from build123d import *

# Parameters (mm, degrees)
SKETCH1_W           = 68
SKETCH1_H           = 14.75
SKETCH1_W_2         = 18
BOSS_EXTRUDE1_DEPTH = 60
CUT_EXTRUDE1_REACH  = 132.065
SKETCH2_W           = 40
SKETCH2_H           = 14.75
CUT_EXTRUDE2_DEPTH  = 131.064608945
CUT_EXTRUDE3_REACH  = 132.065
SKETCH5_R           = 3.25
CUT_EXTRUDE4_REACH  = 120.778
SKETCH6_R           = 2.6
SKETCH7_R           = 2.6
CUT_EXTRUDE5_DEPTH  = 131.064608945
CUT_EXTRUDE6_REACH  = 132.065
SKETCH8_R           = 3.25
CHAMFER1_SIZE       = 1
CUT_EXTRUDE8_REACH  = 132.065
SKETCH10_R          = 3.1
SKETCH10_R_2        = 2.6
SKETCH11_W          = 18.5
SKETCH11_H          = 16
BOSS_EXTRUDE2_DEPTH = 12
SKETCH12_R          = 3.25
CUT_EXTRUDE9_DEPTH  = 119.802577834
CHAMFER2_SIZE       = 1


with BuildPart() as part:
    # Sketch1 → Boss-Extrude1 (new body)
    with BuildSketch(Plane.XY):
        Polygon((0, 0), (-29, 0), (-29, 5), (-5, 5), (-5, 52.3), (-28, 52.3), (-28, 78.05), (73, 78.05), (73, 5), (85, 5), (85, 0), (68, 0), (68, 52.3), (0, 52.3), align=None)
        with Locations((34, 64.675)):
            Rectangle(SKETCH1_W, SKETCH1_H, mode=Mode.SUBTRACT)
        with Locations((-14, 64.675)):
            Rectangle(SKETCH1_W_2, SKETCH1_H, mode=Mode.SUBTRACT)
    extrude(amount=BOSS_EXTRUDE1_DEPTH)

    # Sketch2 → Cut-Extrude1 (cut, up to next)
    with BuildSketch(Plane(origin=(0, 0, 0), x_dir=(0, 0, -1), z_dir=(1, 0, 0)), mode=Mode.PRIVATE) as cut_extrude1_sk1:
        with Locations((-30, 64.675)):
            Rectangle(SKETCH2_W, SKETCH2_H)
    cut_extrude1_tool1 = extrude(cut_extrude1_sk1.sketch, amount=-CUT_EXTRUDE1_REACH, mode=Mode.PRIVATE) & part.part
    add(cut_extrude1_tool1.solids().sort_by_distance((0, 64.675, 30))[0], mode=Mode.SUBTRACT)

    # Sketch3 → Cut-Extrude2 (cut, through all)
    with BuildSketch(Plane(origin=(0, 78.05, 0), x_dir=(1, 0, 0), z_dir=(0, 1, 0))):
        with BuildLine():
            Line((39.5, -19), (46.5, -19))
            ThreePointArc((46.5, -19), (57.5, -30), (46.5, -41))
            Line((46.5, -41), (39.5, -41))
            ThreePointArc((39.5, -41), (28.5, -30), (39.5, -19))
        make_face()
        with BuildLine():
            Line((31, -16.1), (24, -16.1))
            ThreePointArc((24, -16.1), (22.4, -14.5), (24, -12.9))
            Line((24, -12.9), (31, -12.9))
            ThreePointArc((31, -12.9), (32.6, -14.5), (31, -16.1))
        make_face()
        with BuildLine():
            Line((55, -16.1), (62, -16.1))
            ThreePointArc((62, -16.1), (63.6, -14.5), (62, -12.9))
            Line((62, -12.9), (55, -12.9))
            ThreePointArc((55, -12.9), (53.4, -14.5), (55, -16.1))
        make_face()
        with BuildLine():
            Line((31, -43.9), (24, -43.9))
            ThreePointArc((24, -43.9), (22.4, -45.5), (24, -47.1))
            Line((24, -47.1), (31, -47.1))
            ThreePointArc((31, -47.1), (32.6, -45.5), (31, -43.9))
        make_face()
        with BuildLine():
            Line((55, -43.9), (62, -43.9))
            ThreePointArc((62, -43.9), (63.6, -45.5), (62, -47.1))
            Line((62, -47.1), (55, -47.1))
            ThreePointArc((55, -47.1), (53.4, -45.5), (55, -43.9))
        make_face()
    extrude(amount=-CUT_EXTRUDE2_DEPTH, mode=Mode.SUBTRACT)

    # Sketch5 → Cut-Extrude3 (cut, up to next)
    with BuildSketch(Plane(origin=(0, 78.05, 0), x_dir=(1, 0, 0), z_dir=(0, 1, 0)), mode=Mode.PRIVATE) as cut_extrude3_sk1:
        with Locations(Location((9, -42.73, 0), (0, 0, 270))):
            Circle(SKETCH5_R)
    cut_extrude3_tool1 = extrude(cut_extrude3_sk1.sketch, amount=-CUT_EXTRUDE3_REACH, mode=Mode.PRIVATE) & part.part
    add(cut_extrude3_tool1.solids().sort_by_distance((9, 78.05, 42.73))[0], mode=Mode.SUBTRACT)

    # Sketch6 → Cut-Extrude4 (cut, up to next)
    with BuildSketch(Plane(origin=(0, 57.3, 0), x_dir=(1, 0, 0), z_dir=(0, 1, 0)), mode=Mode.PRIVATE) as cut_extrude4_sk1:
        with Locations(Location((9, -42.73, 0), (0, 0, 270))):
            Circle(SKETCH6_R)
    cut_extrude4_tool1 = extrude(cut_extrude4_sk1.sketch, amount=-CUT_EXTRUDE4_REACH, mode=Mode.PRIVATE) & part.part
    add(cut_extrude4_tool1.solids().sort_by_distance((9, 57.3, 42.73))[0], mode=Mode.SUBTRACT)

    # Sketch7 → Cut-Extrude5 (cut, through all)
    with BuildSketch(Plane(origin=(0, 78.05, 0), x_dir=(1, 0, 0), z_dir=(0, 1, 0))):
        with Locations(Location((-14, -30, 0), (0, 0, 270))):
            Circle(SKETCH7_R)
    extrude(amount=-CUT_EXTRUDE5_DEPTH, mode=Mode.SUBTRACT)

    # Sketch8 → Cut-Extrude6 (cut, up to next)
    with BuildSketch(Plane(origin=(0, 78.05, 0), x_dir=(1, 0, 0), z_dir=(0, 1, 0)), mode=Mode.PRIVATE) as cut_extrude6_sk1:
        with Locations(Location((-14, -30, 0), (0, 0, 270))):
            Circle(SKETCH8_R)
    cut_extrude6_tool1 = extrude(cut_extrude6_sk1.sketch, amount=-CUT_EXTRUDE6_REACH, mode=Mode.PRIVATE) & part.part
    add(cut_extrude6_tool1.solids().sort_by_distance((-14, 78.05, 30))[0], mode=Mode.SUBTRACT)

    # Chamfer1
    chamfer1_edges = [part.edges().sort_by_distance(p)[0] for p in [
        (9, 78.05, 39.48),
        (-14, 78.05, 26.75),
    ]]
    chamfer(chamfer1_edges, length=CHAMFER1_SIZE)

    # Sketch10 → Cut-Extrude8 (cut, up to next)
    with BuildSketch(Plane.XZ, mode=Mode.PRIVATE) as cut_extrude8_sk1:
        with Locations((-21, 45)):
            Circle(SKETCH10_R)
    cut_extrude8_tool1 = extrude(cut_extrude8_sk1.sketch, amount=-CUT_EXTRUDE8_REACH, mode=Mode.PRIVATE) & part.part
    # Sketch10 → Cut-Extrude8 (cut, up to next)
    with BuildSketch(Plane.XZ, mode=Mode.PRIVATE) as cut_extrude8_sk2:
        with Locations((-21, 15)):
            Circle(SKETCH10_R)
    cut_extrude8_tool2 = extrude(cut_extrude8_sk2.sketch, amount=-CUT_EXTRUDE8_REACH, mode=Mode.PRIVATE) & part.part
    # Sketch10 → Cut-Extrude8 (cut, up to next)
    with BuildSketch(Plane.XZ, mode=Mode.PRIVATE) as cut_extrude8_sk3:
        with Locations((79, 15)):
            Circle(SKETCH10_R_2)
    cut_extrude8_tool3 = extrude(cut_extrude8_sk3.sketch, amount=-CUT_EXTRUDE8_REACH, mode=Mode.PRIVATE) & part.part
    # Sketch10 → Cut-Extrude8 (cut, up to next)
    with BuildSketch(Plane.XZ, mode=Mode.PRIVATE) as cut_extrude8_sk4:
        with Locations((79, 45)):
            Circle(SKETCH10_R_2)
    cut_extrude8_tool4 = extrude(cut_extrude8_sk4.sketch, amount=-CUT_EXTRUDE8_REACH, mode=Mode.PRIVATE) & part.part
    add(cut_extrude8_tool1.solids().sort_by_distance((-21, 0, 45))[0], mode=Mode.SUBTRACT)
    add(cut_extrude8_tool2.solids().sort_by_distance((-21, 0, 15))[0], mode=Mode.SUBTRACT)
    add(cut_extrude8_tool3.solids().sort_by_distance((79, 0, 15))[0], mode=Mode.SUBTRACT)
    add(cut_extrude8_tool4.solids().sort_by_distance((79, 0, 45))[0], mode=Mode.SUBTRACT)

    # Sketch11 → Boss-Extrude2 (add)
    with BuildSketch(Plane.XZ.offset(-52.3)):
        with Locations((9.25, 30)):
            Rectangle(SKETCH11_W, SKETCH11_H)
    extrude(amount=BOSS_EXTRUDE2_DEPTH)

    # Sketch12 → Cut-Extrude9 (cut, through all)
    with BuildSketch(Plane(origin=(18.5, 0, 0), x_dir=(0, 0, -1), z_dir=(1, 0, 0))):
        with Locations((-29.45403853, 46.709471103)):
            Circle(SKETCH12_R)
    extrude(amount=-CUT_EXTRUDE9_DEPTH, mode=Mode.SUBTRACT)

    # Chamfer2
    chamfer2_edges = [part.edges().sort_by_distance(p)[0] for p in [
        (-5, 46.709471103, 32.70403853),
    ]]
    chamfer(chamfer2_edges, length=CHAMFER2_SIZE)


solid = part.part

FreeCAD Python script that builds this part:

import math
import FreeCAD as App
import Part
import Sketcher

V = App.Vector


def edges_at(feature, points):
    """Names of the edges that pass closest to the given points."""
    edges = feature.Shape.Edges
    near = lambda p: min(range(len(edges)), key=lambda i: edges[i].distToShape(Part.Vertex(*p))[0])
    return sorted({f"Edge{near(p) + 1}" for p in points})

doc = App.newDocument("Part")
body = doc.addObject("PartDesign::Body", "Body")

sketch1 = body.newObject("Sketcher::SketchObject", "Sketch")
sketch1.AttachmentSupport = (doc.getObject("XY_Plane"), [""])
sketch1.MapMode = "FlatFace"
sketch1.addGeometry([
    Part.LineSegment(V(-29, 0, 0), V(0, 0, 0)),
    Part.LineSegment(V(0, 0, 0), V(0, 52, 0)),
    Part.LineSegment(V(0, 52, 0), V(68, 52, 0)),
    Part.LineSegment(V(68, 52, 0), V(68, 0, 0)),
    Part.LineSegment(V(68, 0, 0), V(85, 0, 0)),
    Part.LineSegment(V(85, 0, 0), V(85, 5, 0)),
    Part.LineSegment(V(85, 5, 0), V(73, 5, 0)),
    Part.LineSegment(V(73, 5, 0), V(73, 78, 0)),
    Part.LineSegment(V(73, 78, 0), V(-28, 78, 0)),
    Part.LineSegment(V(-28, 78, 0), V(-28, 52, 0)),
    Part.LineSegment(V(-28, 52, 0), V(-5, 52, 0)),
    Part.LineSegment(V(-5, 52, 0), V(-5, 5, 0)),
    Part.LineSegment(V(-5, 5, 0), V(-29, 5, 0)),
    Part.LineSegment(V(-29, 5, 0), V(-29, 0, 0)),
    Part.LineSegment(V(0, 57, 0), V(0, 72, 0)),
    Part.LineSegment(V(0, 72, 0), V(68, 72, 0)),
    Part.LineSegment(V(68, 72, 0), V(68, 57, 0)),
    Part.LineSegment(V(68, 57, 0), V(0, 57, 0)),
    Part.LineSegment(V(-23, 57, 0), V(-23, 72, 0)),
    Part.LineSegment(V(-23, 72, 0), V(-5, 72, 0)),
    Part.LineSegment(V(-5, 72, 0), V(-5, 57, 0)),
    Part.LineSegment(V(-5, 57, 0), V(-23, 57, 0)),
], False)
sketch1.addConstraint([
    Sketcher.Constraint("Coincident", 0, 2, 1, 1),
    Sketcher.Constraint("Coincident", 1, 2, 2, 1),
    Sketcher.Constraint("Coincident", 2, 2, 3, 1),
    Sketcher.Constraint("Coincident", 3, 2, 4, 1),
    Sketcher.Constraint("Coincident", 4, 2, 5, 1),
    Sketcher.Constraint("Coincident", 5, 2, 6, 1),
    Sketcher.Constraint("Coincident", 6, 2, 7, 1),
    Sketcher.Constraint("Coincident", 7, 2, 8, 1),
    Sketcher.Constraint("Coincident", 8, 2, 9, 1),
    Sketcher.Constraint("Coincident", 9, 2, 10, 1),
    Sketcher.Constraint("Coincident", 10, 2, 11, 1),
    Sketcher.Constraint("Coincident", 11, 2, 12, 1),
    Sketcher.Constraint("Coincident", 12, 2, 13, 1),
    Sketcher.Constraint("Coincident", 13, 2, 0, 1),
    Sketcher.Constraint("Coincident", 14, 2, 15, 1),
    Sketcher.Constraint("Coincident", 15, 2, 16, 1),
    Sketcher.Constraint("Coincident", 16, 2, 17, 1),
    Sketcher.Constraint("Coincident", 17, 2, 14, 1),
    Sketcher.Constraint("Coincident", 18, 2, 19, 1),
    Sketcher.Constraint("Coincident", 19, 2, 20, 1),
    Sketcher.Constraint("Coincident", 20, 2, 21, 1),
    Sketcher.Constraint("Coincident", 21, 2, 18, 1),
    Sketcher.Constraint("Horizontal", 0),
    Sketcher.Constraint("Vertical", 1),
    Sketcher.Constraint("Horizontal", 2),
    Sketcher.Constraint("Vertical", 3),
    Sketcher.Constraint("Horizontal", 4),
    Sketcher.Constraint("Vertical", 5),
    Sketcher.Constraint("Horizontal", 6),
    Sketcher.Constraint("Vertical", 7),
    Sketcher.Constraint("Horizontal", 8),
    Sketcher.Constraint("Vertical", 9),
    Sketcher.Constraint("Horizontal", 10),
    Sketcher.Constraint("Vertical", 11),
    Sketcher.Constraint("Horizontal", 12),
    Sketcher.Constraint("Vertical", 13),
    Sketcher.Constraint("Vertical", 14),
    Sketcher.Constraint("Horizontal", 15),
    Sketcher.Constraint("Vertical", 16),
    Sketcher.Constraint("Horizontal", 17),
    Sketcher.Constraint("Vertical", 18),
    Sketcher.Constraint("Horizontal", 19),
    Sketcher.Constraint("Vertical", 20),
    Sketcher.Constraint("Horizontal", 21),
    Sketcher.Constraint("Coincident", 0, 2, -1, 1),
    Sketcher.Constraint("PointOnObject", 3, 2, -1),
    Sketcher.Constraint("PointOnObject", 14, 2, -2),
    Sketcher.Constraint("Horizontal", 2, 2, 9, 2),
    Sketcher.Constraint("Horizontal", 6, 2, 11, 2),
    Sketcher.Constraint("Horizontal", 15, 2, 18, 2),
    Sketcher.Constraint("Horizontal", 17, 2, 20, 2),
    Sketcher.Constraint("Vertical", 3, 2, 15, 2),
    Sketcher.Constraint("Vertical", 11, 2, 19, 2),
    Sketcher.Constraint("DistanceX", 0, 1, 0, 2, 29.0),
    Sketcher.Constraint("DistanceX", 2, 1, 2, 2, 68.0),
    Sketcher.Constraint("DistanceX", 4, 1, 4, 2, 17.0),
    Sketcher.Constraint("DistanceX", 6, 2, 6, 1, 12.0),
    Sketcher.Constraint("DistanceX", 8, 2, 8, 1, 101.0),
    Sketcher.Constraint("DistanceX", 10, 1, 10, 2, 23.0),
    Sketcher.Constraint("DistanceX", 19, 1, 19, 2, 18.0),
    Sketcher.Constraint("DistanceY", 5, 1, 5, 2, 5.0),
    Sketcher.Constraint("DistanceY", 1, 1, 1, 2, 52.3),
    Sketcher.Constraint("DistanceY", 14, 2, 8, 2, 6.0),
    Sketcher.Constraint("DistanceY", 2, 2, 16, 2, 5.0),
    Sketcher.Constraint("DistanceY", 7, 1, 7, 2, 73.05),
])
pad1 = body.newObject("PartDesign::Pad", "Pad")
pad1.Profile = sketch1
pad1.Length = 60

sketch2 = body.newObject("Sketcher::SketchObject", "Sketch001")
sketch2.AttachmentSupport = (doc.getObject("YZ_Plane"), [""])
sketch2.MapMode = "FlatFace"
sketch2.addGeometry([
    Part.LineSegment(V(72, 50, 0), V(57, 50, 0)),
    Part.LineSegment(V(57, 50, 0), V(57, 10, 0)),
    Part.LineSegment(V(57, 10, 0), V(72, 10, 0)),
    Part.LineSegment(V(72, 10, 0), V(72, 50, 0)),
], False)
sketch2.addConstraint([
    Sketcher.Constraint("Coincident", 0, 2, 1, 1),
    Sketcher.Constraint("Coincident", 1, 2, 2, 1),
    Sketcher.Constraint("Coincident", 2, 2, 3, 1),
    Sketcher.Constraint("Coincident", 3, 2, 0, 1),
    Sketcher.Constraint("Horizontal", 0),
    Sketcher.Constraint("Vertical", 1),
    Sketcher.Constraint("Horizontal", 2),
    Sketcher.Constraint("Vertical", 3),
    Sketcher.Constraint("DistanceY", 1, 2, 1, 1, 40.0),
    Sketcher.Constraint("DistanceY", -1, 1, 0, 2, 50.0),
    Sketcher.Constraint("DistanceX", 0, 2, 0, 1, 14.75),
    Sketcher.Constraint("DistanceX", -1, 1, 0, 2, 57.3),
])
pocket1 = body.newObject("PartDesign::Pocket", "Pocket")
pocket1.Profile = sketch2
pocket1.Type = "UpToFirst"

sketch3 = body.newObject("Sketcher::SketchObject", "Sketch002")
sketch3.AttachmentSupport = (doc.getObject("XZ_Plane"), [""])
sketch3.MapMode = "FlatFace"
sketch3.AttachmentOffset = App.Placement(V(0, 0, -78.05), App.Rotation())
sketch3.addGeometry([
    Part.LineSegment(V(46.5, 19, 0), V(39.5, 19, 0)),
    Part.ArcOfCircle(Part.Circle(V(39.5, 30, 0), V(0, 0, 1), 11), math.radians(90), math.radians(270)),
    Part.LineSegment(V(39.5, 41, 0), V(46.5, 41, 0)),
    Part.ArcOfCircle(Part.Circle(V(46.5, 30, 0), V(0, 0, 1), 11), math.radians(-90), math.radians(90)),
    Part.LineSegment(V(24, 16.1, 0), V(31, 16.1, 0)),
    Part.ArcOfCircle(Part.Circle(V(31, 14.5, 0), V(0, 0, 1), 1.6), math.radians(-90), math.radians(90)),
    Part.LineSegment(V(31, 12.9, 0), V(24, 12.9, 0)),
    Part.ArcOfCircle(Part.Circle(V(24, 14.5, 0), V(0, 0, 1), 1.6), math.radians(90), math.radians(270)),
    Part.LineSegment(V(55, 16.1, 0), V(62, 16.1, 0)),
    Part.ArcOfCircle(Part.Circle(V(62, 14.5, 0), V(0, 0, 1), 1.6), math.radians(-90), math.radians(90)),
    Part.LineSegment(V(62, 12.9, 0), V(55, 12.9, 0)),
    Part.ArcOfCircle(Part.Circle(V(55, 14.5, 0), V(0, 0, 1), 1.6), math.radians(90), math.radians(270)),
    Part.LineSegment(V(31, 43.9, 0), V(24, 43.9, 0)),
    Part.ArcOfCircle(Part.Circle(V(24, 45.5, 0), V(0, 0, 1), 1.6), math.radians(90), math.radians(270)),
    Part.LineSegment(V(24, 47.1, 0), V(31, 47.1, 0)),
    Part.ArcOfCircle(Part.Circle(V(31, 45.5, 0), V(0, 0, 1), 1.6), math.radians(-90), math.radians(90)),
    Part.LineSegment(V(62, 43.9, 0), V(55, 43.9, 0)),
    Part.ArcOfCircle(Part.Circle(V(55, 45.5, 0), V(0, 0, 1), 1.6), math.radians(90), math.radians(270)),
    Part.LineSegment(V(55, 47.1, 0), V(62, 47.1, 0)),
    Part.ArcOfCircle(Part.Circle(V(62, 45.5, 0), V(0, 0, 1), 1.6), math.radians(-90), math.radians(90)),
], False)
sketch3.addConstraint([
    Sketcher.Constraint("Tangent", 0, 2, 1, 2),
    Sketcher.Constraint("Tangent", 1, 1, 2, 1),
    Sketcher.Constraint("Tangent", 2, 2, 3, 2),
    Sketcher.Constraint("Tangent", 3, 1, 0, 1),
    Sketcher.Constraint("Tangent", 4, 2, 5, 2),
    Sketcher.Constraint("Tangent", 5, 1, 6, 1),
    Sketcher.Constraint("Tangent", 6, 2, 7, 2),
    Sketcher.Constraint("Tangent", 7, 1, 4, 1),
    Sketcher.Constraint("Tangent", 8, 2, 9, 2),
    Sketcher.Constraint("Tangent", 9, 1, 10, 1),
    Sketcher.Constraint("Tangent", 10, 2, 11, 2),
    Sketcher.Constraint("Tangent", 11, 1, 8, 1),
    Sketcher.Constraint("Tangent", 12, 2, 13, 2),
    Sketcher.Constraint("Tangent", 13, 1, 14, 1),
    Sketcher.Constraint("Tangent", 14, 2, 15, 2),
    Sketcher.Constraint("Tangent", 15, 1, 12, 1),
    Sketcher.Constraint("Tangent", 16, 2, 17, 2),
    Sketcher.Constraint("Tangent", 17, 1, 18, 1),
    Sketcher.Constraint("Tangent", 18, 2, 19, 2),
    Sketcher.Constraint("Tangent", 19, 1, 16, 1),
    Sketcher.Constraint("Horizontal", 0),
    Sketcher.Constraint("Horizontal", 2),
    Sketcher.Constraint("Horizontal", 4),
    Sketcher.Constraint("Horizontal", 6),
    Sketcher.Constraint("Horizontal", 8),
    Sketcher.Constraint("Horizontal", 10),
    Sketcher.Constraint("Horizontal", 12),
    Sketcher.Constraint("Horizontal", 14),
    Sketcher.Constraint("Horizontal", 16),
    Sketcher.Constraint("Horizontal", 18),
    Sketcher.Constraint("Equal", 7, 9),
    Sketcher.Constraint("Equal", 11, 13),
    Sketcher.Constraint("Equal", 15, 17),
    Sketcher.Constraint("Horizontal", 7, 3, 9, 3),
    Sketcher.Constraint("Horizontal", 15, 3, 17, 3),
    Sketcher.Constraint("Vertical", 7, 3, 13, 3),
    Sketcher.Constraint("Vertical", 5, 3, 15, 3),
    Sketcher.Constraint("Vertical", 11, 3, 17, 3),
    Sketcher.Constraint("Vertical", 9, 3, 19, 3),
    Sketcher.Constraint("Equal", 2, 4),
    Sketcher.Constraint("Equal", 6, 8),
    Sketcher.Constraint("Radius", 1, 11.0),
    Sketcher.Constraint("Radius", 5, 1.6),
    Sketcher.Constraint("DistanceX", 0, 2, 0, 1, 7.0),
    Sketcher.Constraint("DistanceY", -1, 1, 1, 3, 30.0),
    Sketcher.Constraint("DistanceX", -1, 1, 5, 3, 31.0),
    Sketcher.Constraint("DistanceX", -1, 1, 9, 3, 62.0),
    Sketcher.Constraint("DistanceY", 7, 3, 13, 3, 31.0),
    Sketcher.Constraint("DistanceX", -1, 1, 1, 3, 39.5),
    Sketcher.Constraint("DistanceY", -1, 1, 5, 3, 14.5),
])
pocket2 = body.newObject("PartDesign::Pocket", "Pocket001")
pocket2.Profile = sketch3
pocket2.Type = "ThroughAll"
pocket2.Reversed = True

sketch4 = body.newObject("Sketcher::SketchObject", "Sketch003")
sketch4.AttachmentSupport = (doc.getObject("XZ_Plane"), [""])
sketch4.MapMode = "FlatFace"
sketch4.AttachmentOffset = App.Placement(V(0, 0, -78.05), App.Rotation())
sketch4.addGeometry(Part.Circle(V(9, 42.7, 0), V(0, 0, 1), 3.2), False)
sketch4.addConstraint([
    Sketcher.Constraint("Diameter", 0, 6.5),
    Sketcher.Constraint("DistanceX", -1, 1, 0, 3, 9.0),
    Sketcher.Constraint("DistanceY", -1, 1, 0, 3, 42.73),
])
pocket3 = body.newObject("PartDesign::Pocket", "Pocket002")
pocket3.Profile = sketch4
pocket3.Type = "UpToFirst"
pocket3.Reversed = True

sketch5 = body.newObject("Sketcher::SketchObject", "Sketch004")
sketch5.AttachmentSupport = (doc.getObject("XZ_Plane"), [""])
sketch5.MapMode = "FlatFace"
sketch5.AttachmentOffset = App.Placement(V(0, 0, -57.3), App.Rotation())
sketch5.addGeometry(Part.Circle(V(9, 42.7, 0), V(0, 0, 1), 2.6), False)
sketch5.addConstraint([
    Sketcher.Constraint("Diameter", 0, 5.2),
    Sketcher.Constraint("DistanceX", -1, 1, 0, 3, 9.0),
    Sketcher.Constraint("DistanceY", -1, 1, 0, 3, 42.73),
])
pocket4 = body.newObject("PartDesign::Pocket", "Pocket003")
pocket4.Profile = sketch5
pocket4.Type = "UpToFirst"
pocket4.Reversed = True

sketch6 = body.newObject("Sketcher::SketchObject", "Sketch005")
sketch6.AttachmentSupport = (doc.getObject("XZ_Plane"), [""])
sketch6.MapMode = "FlatFace"
sketch6.AttachmentOffset = App.Placement(V(0, 0, -78.05), App.Rotation())
sketch6.addGeometry(Part.Circle(V(-14, 30, 0), V(0, 0, 1), 2.6), False)
sketch6.addConstraint([
    Sketcher.Constraint("Diameter", 0, 5.2),
    Sketcher.Constraint("DistanceX", 0, 3, -1, 1, 14.0),
    Sketcher.Constraint("DistanceY", -1, 1, 0, 3, 30.0),
])
pocket5 = body.newObject("PartDesign::Pocket", "Pocket004")
pocket5.Profile = sketch6
pocket5.Type = "ThroughAll"
pocket5.Reversed = True

sketch7 = body.newObject("Sketcher::SketchObject", "Sketch006")
sketch7.AttachmentSupport = (doc.getObject("XZ_Plane"), [""])
sketch7.MapMode = "FlatFace"
sketch7.AttachmentOffset = App.Placement(V(0, 0, -78.05), App.Rotation())
sketch7.addGeometry(Part.Circle(V(-14, 30, 0), V(0, 0, 1), 3.2), False)
sketch7.addConstraint([
    Sketcher.Constraint("Diameter", 0, 6.5),
    Sketcher.Constraint("DistanceX", 0, 3, -1, 1, 14.0),
    Sketcher.Constraint("DistanceY", -1, 1, 0, 3, 30.0),
])
pocket6 = body.newObject("PartDesign::Pocket", "Pocket005")
pocket6.Profile = sketch7
pocket6.Length = 6
pocket6.Reversed = True
doc.recompute()

chamfer = body.newObject("PartDesign::Chamfer", "Chamfer")
chamfer.Base = (pocket6, edges_at(pocket6, [(9, 78.05, 39.48), (-14, 78.05, 26.75)]))
chamfer.Size = 1

sketch8 = body.newObject("Sketcher::SketchObject", "Sketch007")
sketch8.AttachmentSupport = (doc.getObject("XZ_Plane"), [""])
sketch8.MapMode = "FlatFace"
sketch8.addGeometry(Part.Circle(V(-21, 45, 0), V(0, 0, 1), 3.1), False)
sketch8.addConstraint([
    Sketcher.Constraint("Diameter", 0, 6.2),
    Sketcher.Constraint("DistanceX", 0, 3, -1, 1, 21.0),
    Sketcher.Constraint("DistanceY", -1, 1, 0, 3, 45.0),
])
pocket7 = body.newObject("PartDesign::Pocket", "Pocket006")
pocket7.Profile = sketch8
pocket7.Type = "UpToFirst"

sketch9 = body.newObject("Sketcher::SketchObject", "Sketch008")
sketch9.AttachmentSupport = (doc.getObject("XZ_Plane"), [""])
sketch9.MapMode = "FlatFace"
sketch9.addGeometry(Part.Circle(V(-21, 15, 0), V(0, 0, 1), 3.1), False)
sketch9.addConstraint([
    Sketcher.Constraint("Diameter", 0, 6.2),
    Sketcher.Constraint("DistanceX", 0, 3, -1, 1, 21.0),
    Sketcher.Constraint("DistanceY", -1, 1, 0, 3, 15.0),
])
pocket8 = body.newObject("PartDesign::Pocket", "Pocket007")
pocket8.Profile = sketch9
pocket8.Type = "UpToFirst"

sketch10 = body.newObject("Sketcher::SketchObject", "Sketch009")
sketch10.AttachmentSupport = (doc.getObject("XZ_Plane"), [""])
sketch10.MapMode = "FlatFace"
sketch10.addGeometry(Part.Circle(V(79, 15, 0), V(0, 0, 1), 2.6), False)
sketch10.addConstraint([
    Sketcher.Constraint("Diameter", 0, 5.2),
    Sketcher.Constraint("DistanceX", -1, 1, 0, 3, 79.0),
    Sketcher.Constraint("DistanceY", -1, 1, 0, 3, 15.0),
])
pocket9 = body.newObject("PartDesign::Pocket", "Pocket008")
pocket9.Profile = sketch10
pocket9.Type = "UpToFirst"

sketch11 = body.newObject("Sketcher::SketchObject", "Sketch010")
sketch11.AttachmentSupport = (doc.getObject("XZ_Plane"), [""])
sketch11.MapMode = "FlatFace"
sketch11.addGeometry(Part.Circle(V(79, 45, 0), V(0, 0, 1), 2.6), False)
sketch11.addConstraint([
    Sketcher.Constraint("Diameter", 0, 5.2),
    Sketcher.Constraint("DistanceX", -1, 1, 0, 3, 79.0),
    Sketcher.Constraint("DistanceY", -1, 1, 0, 3, 45.0),
])
pocket10 = body.newObject("PartDesign::Pocket", "Pocket009")
pocket10.Profile = sketch11
pocket10.Type = "UpToFirst"

sketch12 = body.newObject("Sketcher::SketchObject", "Sketch011")
sketch12.AttachmentSupport = (doc.getObject("XZ_Plane"), [""])
sketch12.MapMode = "FlatFace"
sketch12.AttachmentOffset = App.Placement(V(0, 0, -52.3), App.Rotation())
sketch12.addGeometry([
    Part.LineSegment(V(0, 38, 0), V(0, 22, 0)),
    Part.LineSegment(V(0, 22, 0), V(18, 22, 0)),
    Part.LineSegment(V(18, 22, 0), V(18, 38, 0)),
    Part.LineSegment(V(18, 38, 0), V(0, 38, 0)),
], False)
sketch12.addConstraint([
    Sketcher.Constraint("Coincident", 0, 2, 1, 1),
    Sketcher.Constraint("Coincident", 1, 2, 2, 1),
    Sketcher.Constraint("Coincident", 2, 2, 3, 1),
    Sketcher.Constraint("Coincident", 3, 2, 0, 1),
    Sketcher.Constraint("Vertical", 0),
    Sketcher.Constraint("Horizontal", 1),
    Sketcher.Constraint("Vertical", 2),
    Sketcher.Constraint("Horizontal", 3),
    Sketcher.Constraint("PointOnObject", 0, 2, -2),
    Sketcher.Constraint("DistanceY", 0, 2, 0, 1, 16.0),
    Sketcher.Constraint("DistanceX", 1, 1, 1, 2, 18.5),
    Sketcher.Constraint("DistanceY", -1, 1, 0, 2, 22.0),
])
pad2 = body.newObject("PartDesign::Pad", "Pad001")
pad2.Profile = sketch12
pad2.Length = 12

sketch13 = body.newObject("Sketcher::SketchObject", "Sketch012")
sketch13.AttachmentSupport = (doc.getObject("YZ_Plane"), [""])
sketch13.MapMode = "FlatFace"
sketch13.AttachmentOffset = App.Placement(V(0, 0, 18.5), App.Rotation())
sketch13.addGeometry(Part.Circle(V(46.7, 29.5, 0), V(0, 0, 1), 3.2), False)
sketch13.addConstraint([
    Sketcher.Constraint("Diameter", 0, 6.5),
    Sketcher.Constraint("DistanceX", -1, 1, 0, 3, 46.709471),
    Sketcher.Constraint("DistanceY", -1, 1, 0, 3, 29.454039),
])
pocket11 = body.newObject("PartDesign::Pocket", "Pocket010")
pocket11.Profile = sketch13
pocket11.Type = "ThroughAll"
doc.recompute()

chamfer2 = body.newObject("PartDesign::Chamfer", "Chamfer001")
chamfer2.Base = (pocket11, edges_at(pocket11, [(-5, 46.709, 32.704)]))
chamfer2.Size = 1

doc.recompute()
